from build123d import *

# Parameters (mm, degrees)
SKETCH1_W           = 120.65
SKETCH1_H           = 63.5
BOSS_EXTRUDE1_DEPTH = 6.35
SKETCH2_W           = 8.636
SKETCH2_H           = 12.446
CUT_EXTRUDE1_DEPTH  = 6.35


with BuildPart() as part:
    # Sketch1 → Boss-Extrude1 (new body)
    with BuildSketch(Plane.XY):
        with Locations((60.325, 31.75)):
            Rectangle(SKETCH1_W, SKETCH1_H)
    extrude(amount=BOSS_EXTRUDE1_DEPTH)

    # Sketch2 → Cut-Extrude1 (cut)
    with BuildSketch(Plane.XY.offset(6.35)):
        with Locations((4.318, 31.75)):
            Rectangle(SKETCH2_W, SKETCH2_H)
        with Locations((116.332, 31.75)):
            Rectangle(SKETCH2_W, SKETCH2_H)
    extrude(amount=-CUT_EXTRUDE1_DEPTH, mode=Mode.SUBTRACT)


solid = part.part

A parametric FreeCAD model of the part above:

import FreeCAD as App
import Part
import Sketcher
from FreeCAD import Vector
Q = App.Units.Quantity


def add_polygon(sketch, points):
    """Adds a closed chain of lines whose ends are joined by coincident constraints."""
    first, n = sketch.GeometryCount, len(points)
    for a, b in zip(points, points[1:] + points[:1]):
        sketch.addGeometry(Part.LineSegment(App.Vector(*a, 0), App.Vector(*b, 0)), False)
    for i in range(n):
        sketch.addConstraint(Sketcher.Constraint("Coincident", first + i, 2, first + (i + 1) % n, 1))

doc = App.newDocument("Part")
body = doc.addObject("PartDesign::Body", "Body")

sketch1 = doc.addObject("Sketcher::SketchObject", "Sketch")
body.addObject(sketch1)
sketch1.AttachmentSupport = (doc.XY_Plane, [""])
sketch1.MapMode = "FlatFace"
add_polygon(sketch1, [(0, 64), (0, 0), (121, 0), (121, 64)])
sketch1.addConstraint([
    Sketcher.Constraint("Vertical", 0),
    Sketcher.Constraint("Horizontal", 1),
    Sketcher.Constraint("Vertical", 2),
    Sketcher.Constraint("Horizontal", 3),
    Sketcher.Constraint("Coincident", 0, 2, -1, 1),
    Sketcher.Constraint("DistanceY", 0, 2, 0, 1, Q("2.5 in")),
    Sketcher.Constraint("DistanceX", 1, 1, 1, 2, Q("4.75 in")),
])
pad1 = doc.addObject("PartDesign::Pad", "Pad")
body.addObject(pad1)
pad1.Profile = sketch1
pad1.Length = Q("0.25 in")

sketch2 = doc.addObject("Sketcher::SketchObject", "Sketch001")
body.addObject(sketch2)
sketch2.AttachmentSupport = (doc.XY_Plane, [""])
sketch2.MapMode = "FlatFace"
sketch2.AttachmentOffset = App.Placement(Vector(0, 0, 0.25 * 25.4), App.Rotation())
add_polygon(sketch2, [(0, 38), (0, 26), (9, 26), (9, 38)])
add_polygon(sketch2, [(112, 38), (112, 26), (121, 26), (121, 38)])
sketch2.addConstraint([
    Sketcher.Constraint("Vertical", 0),
    Sketcher.Constraint("Horizontal", 1),
    Sketcher.Constraint("Vertical", 2),
    Sketcher.Constraint("Horizontal", 3),
    Sketcher.Constraint("Vertical", 4),
    Sketcher.Constraint("Horizontal", 5),
    Sketcher.Constraint("Vertical", 6),
    Sketcher.Constraint("Horizontal", 7),
    Sketcher.Constraint("PointOnObject", 0, 2, -2),
    Sketcher.Constraint("Horizontal", 1, 2, 4, 2),
    Sketcher.Constraint("Horizontal", 3, 2, 6, 2),
    Sketcher.Constraint("Equal", 3, 5),
    Sketcher.Constraint("DistanceX", 1, 1, 1, 2, Q("0.34 in")),
    Sketcher.Constraint("DistanceY", 0, 2, 0, 1, Q("0.49 in")),
    Sketcher.Constraint("DistanceX", -1, 1, 4, 2, Q("4.41 in")),
    Sketcher.Constraint("DistanceY", -1, 1, 0, 2, Q("1.005 in")),
])
pocket1 = doc.addObject("PartDesign::Pocket", "Pocket")
body.addObject(pocket1)
pocket1.Profile = sketch2
pocket1.Length = Q("0.25 in")

doc.recompute()
